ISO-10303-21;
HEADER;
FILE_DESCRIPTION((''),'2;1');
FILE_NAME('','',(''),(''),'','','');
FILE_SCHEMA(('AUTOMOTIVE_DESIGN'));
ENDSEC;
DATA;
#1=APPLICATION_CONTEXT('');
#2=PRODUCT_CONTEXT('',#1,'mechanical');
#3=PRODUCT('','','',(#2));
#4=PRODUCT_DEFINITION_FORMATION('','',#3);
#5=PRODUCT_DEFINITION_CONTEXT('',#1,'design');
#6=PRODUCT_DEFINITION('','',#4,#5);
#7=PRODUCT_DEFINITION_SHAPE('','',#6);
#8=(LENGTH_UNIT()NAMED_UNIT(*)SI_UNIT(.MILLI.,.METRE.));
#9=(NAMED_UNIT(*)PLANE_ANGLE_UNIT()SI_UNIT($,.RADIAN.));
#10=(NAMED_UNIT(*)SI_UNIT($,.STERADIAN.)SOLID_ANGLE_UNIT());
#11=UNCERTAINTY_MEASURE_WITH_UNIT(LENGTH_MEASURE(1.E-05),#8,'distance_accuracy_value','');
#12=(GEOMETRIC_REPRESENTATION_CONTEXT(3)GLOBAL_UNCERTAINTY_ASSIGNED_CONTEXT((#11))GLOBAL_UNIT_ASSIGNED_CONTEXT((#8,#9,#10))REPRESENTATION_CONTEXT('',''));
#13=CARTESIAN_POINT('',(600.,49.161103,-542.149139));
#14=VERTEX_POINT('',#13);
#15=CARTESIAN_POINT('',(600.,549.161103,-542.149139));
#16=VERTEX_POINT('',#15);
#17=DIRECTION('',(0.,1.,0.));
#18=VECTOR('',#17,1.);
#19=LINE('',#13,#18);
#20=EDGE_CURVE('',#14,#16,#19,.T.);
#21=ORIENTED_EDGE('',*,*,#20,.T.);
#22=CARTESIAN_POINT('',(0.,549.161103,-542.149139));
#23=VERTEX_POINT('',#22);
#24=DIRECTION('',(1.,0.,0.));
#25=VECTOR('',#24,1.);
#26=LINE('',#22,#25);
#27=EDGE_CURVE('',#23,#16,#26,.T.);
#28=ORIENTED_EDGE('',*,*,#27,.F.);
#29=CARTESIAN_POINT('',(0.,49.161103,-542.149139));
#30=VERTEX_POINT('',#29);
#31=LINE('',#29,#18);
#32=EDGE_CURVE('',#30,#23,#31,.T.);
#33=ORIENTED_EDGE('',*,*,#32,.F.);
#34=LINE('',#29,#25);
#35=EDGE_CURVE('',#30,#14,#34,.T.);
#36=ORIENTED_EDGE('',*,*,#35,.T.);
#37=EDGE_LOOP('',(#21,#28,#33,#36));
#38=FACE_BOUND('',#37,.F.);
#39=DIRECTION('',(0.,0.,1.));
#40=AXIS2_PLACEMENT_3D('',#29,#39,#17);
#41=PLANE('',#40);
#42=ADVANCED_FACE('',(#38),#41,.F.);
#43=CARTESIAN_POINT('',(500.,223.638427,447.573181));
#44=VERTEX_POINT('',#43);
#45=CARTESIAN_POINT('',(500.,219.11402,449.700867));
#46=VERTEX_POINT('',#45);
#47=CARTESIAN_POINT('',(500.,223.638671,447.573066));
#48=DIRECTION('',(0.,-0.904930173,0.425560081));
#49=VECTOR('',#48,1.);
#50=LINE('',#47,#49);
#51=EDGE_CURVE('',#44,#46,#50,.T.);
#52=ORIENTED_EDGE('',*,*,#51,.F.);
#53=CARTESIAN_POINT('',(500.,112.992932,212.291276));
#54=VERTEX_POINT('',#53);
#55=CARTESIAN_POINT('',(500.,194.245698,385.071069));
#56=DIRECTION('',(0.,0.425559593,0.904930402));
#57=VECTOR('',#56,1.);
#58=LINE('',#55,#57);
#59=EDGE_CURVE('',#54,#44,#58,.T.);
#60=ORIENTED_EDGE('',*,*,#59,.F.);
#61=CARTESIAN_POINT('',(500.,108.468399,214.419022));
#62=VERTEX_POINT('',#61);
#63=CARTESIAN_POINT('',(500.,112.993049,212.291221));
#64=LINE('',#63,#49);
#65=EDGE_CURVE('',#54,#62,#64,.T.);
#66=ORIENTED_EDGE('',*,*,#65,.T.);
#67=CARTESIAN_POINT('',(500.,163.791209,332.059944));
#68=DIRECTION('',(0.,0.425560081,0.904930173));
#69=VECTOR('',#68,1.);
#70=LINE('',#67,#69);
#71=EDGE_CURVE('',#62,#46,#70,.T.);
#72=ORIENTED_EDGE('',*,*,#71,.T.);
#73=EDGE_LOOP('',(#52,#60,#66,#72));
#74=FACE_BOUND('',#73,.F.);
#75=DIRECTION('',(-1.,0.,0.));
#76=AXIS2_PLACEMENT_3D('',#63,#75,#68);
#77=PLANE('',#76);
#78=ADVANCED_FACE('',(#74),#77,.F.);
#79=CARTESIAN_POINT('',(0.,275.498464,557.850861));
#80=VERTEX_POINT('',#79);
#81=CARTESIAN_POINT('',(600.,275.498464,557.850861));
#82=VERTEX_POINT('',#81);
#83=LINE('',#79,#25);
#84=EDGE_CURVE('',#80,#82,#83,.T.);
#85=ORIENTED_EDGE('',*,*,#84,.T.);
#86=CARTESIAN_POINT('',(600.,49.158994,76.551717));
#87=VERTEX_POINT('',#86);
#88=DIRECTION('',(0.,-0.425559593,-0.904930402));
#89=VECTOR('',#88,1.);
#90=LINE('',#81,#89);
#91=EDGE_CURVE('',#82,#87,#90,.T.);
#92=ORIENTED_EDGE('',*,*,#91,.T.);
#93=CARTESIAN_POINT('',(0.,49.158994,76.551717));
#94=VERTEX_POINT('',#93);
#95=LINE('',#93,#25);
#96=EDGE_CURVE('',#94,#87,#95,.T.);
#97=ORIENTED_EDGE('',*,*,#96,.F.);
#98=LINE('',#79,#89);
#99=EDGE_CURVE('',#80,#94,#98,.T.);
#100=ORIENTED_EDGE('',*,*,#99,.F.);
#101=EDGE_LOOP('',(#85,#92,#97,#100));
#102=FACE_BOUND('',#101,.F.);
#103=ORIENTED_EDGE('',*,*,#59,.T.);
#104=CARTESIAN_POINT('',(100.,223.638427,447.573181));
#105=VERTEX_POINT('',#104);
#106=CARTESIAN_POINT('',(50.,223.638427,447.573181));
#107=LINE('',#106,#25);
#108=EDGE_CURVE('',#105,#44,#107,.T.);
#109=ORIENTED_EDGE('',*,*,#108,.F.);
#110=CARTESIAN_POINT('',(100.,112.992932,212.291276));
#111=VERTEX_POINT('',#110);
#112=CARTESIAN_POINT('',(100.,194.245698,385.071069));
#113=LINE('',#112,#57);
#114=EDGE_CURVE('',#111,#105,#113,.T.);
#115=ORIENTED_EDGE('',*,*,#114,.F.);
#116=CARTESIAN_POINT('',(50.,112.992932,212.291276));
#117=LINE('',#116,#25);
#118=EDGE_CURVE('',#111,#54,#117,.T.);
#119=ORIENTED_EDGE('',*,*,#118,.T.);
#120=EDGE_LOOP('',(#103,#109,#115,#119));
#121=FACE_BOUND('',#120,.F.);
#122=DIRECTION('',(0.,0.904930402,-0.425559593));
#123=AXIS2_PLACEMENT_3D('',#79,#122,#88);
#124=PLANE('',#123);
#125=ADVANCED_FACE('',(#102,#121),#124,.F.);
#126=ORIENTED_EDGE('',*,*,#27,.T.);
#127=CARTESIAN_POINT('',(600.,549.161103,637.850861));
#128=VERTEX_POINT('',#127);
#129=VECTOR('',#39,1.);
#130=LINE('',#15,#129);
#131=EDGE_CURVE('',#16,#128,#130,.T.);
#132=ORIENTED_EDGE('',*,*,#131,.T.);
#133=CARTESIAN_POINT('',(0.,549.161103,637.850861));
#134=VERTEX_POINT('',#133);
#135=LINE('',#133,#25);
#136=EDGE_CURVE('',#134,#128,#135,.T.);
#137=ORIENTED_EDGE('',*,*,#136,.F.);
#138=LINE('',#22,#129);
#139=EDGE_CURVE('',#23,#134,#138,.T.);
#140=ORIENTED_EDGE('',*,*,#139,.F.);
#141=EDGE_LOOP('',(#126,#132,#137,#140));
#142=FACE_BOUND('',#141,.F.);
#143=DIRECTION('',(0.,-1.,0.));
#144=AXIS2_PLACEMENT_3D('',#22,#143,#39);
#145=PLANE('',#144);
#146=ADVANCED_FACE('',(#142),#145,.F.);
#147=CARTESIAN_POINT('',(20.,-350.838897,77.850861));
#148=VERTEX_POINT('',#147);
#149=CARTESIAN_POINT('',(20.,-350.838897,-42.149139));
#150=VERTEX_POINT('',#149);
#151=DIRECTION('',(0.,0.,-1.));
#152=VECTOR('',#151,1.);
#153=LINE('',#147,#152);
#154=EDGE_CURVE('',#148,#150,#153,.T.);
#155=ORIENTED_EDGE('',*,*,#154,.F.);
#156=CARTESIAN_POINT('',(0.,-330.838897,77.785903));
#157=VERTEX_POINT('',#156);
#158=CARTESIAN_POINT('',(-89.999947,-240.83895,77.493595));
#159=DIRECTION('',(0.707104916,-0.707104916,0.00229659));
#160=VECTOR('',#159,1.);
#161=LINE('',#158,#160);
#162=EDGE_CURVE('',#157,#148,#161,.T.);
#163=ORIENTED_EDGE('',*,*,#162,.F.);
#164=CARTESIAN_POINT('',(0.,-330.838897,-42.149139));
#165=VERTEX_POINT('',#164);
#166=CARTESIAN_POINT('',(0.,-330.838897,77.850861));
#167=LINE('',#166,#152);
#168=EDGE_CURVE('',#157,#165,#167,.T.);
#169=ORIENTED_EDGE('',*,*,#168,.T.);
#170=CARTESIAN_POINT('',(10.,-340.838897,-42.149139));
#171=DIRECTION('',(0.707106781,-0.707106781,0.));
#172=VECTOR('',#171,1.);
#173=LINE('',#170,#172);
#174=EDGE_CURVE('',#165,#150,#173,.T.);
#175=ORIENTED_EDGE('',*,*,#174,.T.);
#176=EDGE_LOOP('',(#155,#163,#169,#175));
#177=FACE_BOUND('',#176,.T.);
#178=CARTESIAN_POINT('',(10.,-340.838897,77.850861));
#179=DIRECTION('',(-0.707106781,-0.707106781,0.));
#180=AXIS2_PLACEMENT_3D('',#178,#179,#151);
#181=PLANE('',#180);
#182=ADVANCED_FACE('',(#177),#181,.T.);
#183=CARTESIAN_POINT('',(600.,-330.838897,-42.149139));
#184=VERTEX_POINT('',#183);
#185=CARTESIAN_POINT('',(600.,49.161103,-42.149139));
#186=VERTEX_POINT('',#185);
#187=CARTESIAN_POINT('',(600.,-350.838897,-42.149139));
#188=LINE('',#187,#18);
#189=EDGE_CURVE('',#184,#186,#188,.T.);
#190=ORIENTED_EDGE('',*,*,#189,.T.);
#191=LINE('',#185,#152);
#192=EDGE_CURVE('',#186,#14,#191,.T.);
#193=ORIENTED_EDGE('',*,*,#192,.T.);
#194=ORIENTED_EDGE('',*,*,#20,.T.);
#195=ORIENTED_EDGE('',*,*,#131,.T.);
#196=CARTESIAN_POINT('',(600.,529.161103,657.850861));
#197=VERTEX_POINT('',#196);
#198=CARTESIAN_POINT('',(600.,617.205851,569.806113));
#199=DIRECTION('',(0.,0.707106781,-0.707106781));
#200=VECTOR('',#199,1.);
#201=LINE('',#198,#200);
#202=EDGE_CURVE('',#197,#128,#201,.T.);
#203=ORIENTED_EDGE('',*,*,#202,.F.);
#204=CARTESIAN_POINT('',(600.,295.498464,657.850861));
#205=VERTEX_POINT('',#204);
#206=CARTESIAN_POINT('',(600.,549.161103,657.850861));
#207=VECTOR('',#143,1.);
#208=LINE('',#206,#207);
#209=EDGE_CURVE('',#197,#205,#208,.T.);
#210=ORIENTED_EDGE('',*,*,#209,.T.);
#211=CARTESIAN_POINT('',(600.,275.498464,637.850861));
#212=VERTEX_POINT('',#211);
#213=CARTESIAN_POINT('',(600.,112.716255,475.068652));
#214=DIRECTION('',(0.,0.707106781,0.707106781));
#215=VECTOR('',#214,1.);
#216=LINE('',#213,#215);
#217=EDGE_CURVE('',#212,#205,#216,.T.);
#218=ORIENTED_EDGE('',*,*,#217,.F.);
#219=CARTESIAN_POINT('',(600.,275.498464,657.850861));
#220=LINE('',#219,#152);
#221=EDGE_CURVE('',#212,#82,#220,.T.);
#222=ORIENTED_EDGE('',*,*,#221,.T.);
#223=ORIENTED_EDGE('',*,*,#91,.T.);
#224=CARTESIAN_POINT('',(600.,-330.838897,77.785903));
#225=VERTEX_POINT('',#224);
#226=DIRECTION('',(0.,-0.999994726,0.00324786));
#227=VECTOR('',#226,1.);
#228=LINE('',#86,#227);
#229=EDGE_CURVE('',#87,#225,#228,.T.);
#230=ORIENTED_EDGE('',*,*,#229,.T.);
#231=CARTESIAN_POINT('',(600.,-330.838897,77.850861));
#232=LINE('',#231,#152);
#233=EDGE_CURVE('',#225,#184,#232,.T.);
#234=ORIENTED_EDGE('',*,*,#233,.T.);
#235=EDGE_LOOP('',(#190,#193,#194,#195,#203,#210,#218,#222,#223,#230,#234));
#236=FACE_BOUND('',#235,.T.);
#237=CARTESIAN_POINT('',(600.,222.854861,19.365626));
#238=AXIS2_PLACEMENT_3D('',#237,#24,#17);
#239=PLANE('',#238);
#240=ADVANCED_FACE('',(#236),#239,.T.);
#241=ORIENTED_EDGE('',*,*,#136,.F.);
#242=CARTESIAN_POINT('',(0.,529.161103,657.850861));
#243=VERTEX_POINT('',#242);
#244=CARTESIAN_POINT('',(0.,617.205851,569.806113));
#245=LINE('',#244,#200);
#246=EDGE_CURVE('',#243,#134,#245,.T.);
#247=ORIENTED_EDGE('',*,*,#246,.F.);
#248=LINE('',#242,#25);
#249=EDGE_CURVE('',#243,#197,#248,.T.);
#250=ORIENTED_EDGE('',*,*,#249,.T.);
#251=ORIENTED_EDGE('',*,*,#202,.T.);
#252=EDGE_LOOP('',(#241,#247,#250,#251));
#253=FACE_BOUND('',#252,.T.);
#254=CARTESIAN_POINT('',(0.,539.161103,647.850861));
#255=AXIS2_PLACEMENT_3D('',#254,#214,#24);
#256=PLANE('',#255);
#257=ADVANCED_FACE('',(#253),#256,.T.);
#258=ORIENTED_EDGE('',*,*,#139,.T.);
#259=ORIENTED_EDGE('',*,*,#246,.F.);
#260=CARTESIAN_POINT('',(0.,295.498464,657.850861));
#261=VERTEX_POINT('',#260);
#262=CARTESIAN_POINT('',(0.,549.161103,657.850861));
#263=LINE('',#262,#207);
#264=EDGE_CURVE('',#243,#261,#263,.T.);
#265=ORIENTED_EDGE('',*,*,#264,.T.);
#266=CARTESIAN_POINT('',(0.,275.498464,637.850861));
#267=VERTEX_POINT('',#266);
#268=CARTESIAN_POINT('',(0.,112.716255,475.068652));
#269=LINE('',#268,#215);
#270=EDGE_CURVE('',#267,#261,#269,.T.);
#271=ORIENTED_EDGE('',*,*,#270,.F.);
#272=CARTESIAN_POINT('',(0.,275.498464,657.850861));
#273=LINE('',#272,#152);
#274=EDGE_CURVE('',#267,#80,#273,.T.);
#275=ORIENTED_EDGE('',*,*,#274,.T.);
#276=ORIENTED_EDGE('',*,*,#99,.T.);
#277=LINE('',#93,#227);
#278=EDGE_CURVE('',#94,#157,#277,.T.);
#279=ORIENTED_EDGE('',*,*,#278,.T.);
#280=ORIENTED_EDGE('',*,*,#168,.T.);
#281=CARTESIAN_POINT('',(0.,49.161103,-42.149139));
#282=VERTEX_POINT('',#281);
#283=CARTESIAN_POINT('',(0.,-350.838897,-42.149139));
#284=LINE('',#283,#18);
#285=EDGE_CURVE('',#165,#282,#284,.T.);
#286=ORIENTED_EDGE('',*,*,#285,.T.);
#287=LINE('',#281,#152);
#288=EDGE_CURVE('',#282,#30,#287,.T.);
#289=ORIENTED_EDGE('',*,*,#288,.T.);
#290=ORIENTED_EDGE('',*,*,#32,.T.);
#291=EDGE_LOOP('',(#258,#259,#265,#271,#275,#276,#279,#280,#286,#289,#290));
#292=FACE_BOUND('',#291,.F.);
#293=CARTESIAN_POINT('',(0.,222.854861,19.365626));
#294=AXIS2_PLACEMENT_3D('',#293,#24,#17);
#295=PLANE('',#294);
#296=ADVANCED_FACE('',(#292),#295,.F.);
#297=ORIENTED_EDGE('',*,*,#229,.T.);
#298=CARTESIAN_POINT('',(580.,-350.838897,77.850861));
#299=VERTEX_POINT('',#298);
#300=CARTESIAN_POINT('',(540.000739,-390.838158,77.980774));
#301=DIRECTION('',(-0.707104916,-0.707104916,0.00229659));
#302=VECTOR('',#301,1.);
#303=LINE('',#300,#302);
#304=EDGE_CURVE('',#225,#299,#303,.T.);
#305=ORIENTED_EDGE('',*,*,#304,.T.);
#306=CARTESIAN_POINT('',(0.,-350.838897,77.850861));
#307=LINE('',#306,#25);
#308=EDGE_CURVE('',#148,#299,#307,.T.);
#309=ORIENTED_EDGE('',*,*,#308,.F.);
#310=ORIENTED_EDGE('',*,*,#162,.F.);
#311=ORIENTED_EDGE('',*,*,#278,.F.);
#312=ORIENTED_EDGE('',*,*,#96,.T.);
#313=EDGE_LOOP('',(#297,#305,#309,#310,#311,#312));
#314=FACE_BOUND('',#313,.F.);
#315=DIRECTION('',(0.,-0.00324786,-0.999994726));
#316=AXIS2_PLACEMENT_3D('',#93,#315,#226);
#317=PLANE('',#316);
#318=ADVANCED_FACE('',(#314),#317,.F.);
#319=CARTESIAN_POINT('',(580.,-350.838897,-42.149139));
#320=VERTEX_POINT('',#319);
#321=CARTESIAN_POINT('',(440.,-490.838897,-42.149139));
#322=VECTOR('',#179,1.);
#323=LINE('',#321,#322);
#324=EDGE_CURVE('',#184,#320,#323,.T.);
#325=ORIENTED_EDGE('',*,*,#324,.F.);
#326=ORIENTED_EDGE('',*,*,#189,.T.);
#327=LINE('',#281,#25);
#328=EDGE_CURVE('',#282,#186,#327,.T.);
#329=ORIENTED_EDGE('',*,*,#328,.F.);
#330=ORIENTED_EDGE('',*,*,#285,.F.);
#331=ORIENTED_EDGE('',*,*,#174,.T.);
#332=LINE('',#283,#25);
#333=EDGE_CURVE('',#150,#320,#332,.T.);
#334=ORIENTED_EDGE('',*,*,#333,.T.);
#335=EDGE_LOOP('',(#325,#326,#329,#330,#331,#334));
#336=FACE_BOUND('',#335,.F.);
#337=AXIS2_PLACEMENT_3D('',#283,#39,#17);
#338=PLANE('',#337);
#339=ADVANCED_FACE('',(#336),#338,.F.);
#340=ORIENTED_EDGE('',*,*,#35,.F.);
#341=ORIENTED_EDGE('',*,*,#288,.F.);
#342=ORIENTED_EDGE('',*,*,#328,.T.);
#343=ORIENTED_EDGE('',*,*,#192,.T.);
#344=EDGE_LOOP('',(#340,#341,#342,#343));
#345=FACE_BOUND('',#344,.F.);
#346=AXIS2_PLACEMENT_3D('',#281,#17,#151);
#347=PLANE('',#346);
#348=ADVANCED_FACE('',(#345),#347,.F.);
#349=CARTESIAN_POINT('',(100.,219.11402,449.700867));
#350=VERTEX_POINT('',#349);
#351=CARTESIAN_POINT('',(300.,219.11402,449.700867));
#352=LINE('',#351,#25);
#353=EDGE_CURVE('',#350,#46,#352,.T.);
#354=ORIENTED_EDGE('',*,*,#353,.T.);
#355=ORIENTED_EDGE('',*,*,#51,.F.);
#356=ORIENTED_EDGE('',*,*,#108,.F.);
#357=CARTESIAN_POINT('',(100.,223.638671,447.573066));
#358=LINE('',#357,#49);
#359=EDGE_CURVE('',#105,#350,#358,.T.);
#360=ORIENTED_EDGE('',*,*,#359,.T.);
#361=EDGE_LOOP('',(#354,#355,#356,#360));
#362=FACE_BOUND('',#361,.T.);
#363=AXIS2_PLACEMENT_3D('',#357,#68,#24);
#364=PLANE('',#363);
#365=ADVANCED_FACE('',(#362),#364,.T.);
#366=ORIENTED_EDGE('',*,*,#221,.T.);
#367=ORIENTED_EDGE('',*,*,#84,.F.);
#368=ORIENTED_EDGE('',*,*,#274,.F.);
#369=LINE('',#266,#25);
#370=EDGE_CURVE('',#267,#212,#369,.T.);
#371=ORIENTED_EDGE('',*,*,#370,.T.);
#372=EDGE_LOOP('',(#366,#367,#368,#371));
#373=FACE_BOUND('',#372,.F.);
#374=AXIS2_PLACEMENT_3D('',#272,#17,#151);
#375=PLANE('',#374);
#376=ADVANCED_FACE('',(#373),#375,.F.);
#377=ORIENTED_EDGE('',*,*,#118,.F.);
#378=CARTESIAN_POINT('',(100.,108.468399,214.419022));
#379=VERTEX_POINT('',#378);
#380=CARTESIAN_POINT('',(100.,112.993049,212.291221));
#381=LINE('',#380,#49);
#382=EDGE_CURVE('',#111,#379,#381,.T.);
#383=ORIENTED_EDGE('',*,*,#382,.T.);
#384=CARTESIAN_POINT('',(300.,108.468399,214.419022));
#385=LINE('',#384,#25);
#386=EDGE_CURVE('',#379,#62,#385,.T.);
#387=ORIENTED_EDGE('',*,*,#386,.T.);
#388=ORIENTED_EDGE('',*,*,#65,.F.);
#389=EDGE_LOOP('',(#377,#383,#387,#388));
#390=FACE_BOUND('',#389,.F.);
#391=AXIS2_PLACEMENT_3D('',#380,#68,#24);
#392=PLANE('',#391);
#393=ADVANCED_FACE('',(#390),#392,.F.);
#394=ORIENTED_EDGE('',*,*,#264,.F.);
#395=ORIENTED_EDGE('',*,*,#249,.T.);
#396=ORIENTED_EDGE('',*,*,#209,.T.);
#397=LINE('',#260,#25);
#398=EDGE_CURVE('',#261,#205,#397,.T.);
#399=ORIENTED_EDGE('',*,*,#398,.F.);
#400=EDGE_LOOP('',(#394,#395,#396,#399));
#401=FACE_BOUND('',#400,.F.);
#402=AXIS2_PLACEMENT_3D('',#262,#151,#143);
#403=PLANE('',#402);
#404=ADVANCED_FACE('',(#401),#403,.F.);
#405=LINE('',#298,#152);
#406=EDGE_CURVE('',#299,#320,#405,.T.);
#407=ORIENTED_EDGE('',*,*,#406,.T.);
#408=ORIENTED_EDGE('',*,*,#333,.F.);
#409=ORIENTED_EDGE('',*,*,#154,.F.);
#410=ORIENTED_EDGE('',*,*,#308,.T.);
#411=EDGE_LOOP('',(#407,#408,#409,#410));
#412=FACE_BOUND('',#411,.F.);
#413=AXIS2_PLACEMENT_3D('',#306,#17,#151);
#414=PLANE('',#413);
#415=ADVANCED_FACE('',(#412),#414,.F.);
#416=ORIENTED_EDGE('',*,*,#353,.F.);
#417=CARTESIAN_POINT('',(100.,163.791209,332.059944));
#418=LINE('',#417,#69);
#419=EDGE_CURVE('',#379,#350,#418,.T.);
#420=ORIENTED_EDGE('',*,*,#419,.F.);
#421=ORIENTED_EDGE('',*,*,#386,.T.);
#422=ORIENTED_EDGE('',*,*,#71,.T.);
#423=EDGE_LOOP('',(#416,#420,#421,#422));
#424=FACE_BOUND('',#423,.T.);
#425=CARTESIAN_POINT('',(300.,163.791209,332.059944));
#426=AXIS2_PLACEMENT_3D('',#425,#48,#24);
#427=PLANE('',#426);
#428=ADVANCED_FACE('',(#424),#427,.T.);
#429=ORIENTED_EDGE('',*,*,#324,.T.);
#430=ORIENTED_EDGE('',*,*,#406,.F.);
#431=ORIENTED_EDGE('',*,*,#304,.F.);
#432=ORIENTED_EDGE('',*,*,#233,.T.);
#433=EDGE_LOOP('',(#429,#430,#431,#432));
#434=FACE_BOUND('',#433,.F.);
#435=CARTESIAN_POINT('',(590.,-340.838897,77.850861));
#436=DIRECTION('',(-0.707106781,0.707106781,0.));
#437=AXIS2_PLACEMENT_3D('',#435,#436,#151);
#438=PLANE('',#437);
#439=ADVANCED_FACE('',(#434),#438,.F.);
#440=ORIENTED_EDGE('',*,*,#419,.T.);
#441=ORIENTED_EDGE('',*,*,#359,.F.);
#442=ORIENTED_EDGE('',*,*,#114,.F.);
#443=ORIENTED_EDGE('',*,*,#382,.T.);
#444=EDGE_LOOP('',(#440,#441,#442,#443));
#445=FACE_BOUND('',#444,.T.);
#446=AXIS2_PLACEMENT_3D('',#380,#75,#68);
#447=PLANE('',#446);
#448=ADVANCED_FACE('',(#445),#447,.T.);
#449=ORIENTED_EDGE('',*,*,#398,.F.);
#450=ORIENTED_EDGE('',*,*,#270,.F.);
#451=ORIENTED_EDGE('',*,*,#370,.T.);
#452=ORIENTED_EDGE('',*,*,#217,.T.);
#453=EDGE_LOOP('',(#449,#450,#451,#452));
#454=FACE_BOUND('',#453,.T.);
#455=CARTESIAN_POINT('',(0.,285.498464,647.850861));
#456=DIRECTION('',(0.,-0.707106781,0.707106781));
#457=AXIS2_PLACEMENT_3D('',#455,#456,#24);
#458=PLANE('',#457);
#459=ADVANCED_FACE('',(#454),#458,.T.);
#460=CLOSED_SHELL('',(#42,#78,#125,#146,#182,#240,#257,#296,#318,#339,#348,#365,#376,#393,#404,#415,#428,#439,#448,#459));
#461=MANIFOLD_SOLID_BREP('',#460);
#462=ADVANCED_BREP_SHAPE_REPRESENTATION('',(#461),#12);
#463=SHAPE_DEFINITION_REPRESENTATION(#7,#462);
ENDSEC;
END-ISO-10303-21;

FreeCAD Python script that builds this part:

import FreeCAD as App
import Part
import Sketcher

V = App.Vector
Q = App.Units.Quantity


def edges_at(feature, points):
    """Names of the edges that pass closest to the given points."""
    edges = feature.Shape.Edges
    near = lambda p: min(range(len(edges)), key=lambda i: edges[i].distToShape(Part.Vertex(*p))[0])
    return sorted({f"Edge{near(p) + 1}" for p in points})

doc = App.newDocument("Part")
body = doc.addObject("PartDesign::Body", "Body")

sketch1 = body.newObject("Sketcher::SketchObject", "Sketch")
sketch1.AttachmentSupport = (doc.getObject("YZ_Plane"), [""])
sketch1.MapMode = "FlatFace"
sketch1.addGeometry([
    Part.LineSegment(V(549.161103, 657.850861, 0), V(275.498464, 657.850861, 0)),
    Part.LineSegment(V(275.498464, 657.850861, 0), V(275.498464, 557.850861, 0)),
    Part.LineSegment(V(275.498464, 557.850861, 0), V(49.158994, 76.551717, 0)),
    Part.LineSegment(V(49.158994, 76.551717, 0), V(-350.838897, 77.850861, 0)),
    Part.LineSegment(V(-350.838897, 77.850861, 0), V(-350.838897, -42.149139, 0)),
    Part.LineSegment(V(-350.838897, -42.149139, 0), V(49.161103, -42.149139, 0)),
    Part.LineSegment(V(49.161103, -42.149139, 0), V(49.161103, -542.149139, 0)),
    Part.LineSegment(V(49.161103, -542.149139, 0), V(549.161103, -542.149139, 0)),
    Part.LineSegment(V(549.161103, -542.149139, 0), V(549.161103, 657.850861, 0)),
], False)
sketch1.addConstraint([
    Sketcher.Constraint("Coincident", 0, 2, 1, 1),
    Sketcher.Constraint("Coincident", 1, 2, 2, 1),
    Sketcher.Constraint("Coincident", 2, 2, 3, 1),
    Sketcher.Constraint("Coincident", 3, 2, 4, 1),
    Sketcher.Constraint("Coincident", 4, 2, 5, 1),
    Sketcher.Constraint("Coincident", 5, 2, 6, 1),
    Sketcher.Constraint("Coincident", 6, 2, 7, 1),
    Sketcher.Constraint("Coincident", 7, 2, 8, 1),
    Sketcher.Constraint("Coincident", 8, 2, 0, 1),
    Sketcher.Constraint("Horizontal", 0),
    Sketcher.Constraint("Vertical", 1),
    Sketcher.Constraint("Vertical", 4),
    Sketcher.Constraint("Horizontal", 5),
    Sketcher.Constraint("Vertical", 6),
    Sketcher.Constraint("Horizontal", 7),
    Sketcher.Constraint("Vertical", 8),
    Sketcher.Constraint("Equal", 7, 6),
    Sketcher.Constraint("DistanceX", 5, 1, 5, 2, Q("400 mm")),
    Sketcher.Constraint("DistanceX", 7, 1, 7, 2, Q("500 mm")),
    Sketcher.Constraint("DistanceY", 1, 2, 1, 1, Q("100 mm")),
    Sketcher.Constraint("DistanceY", 4, 2, 4, 1, Q("120 mm")),
    Sketcher.Constraint("DistanceY", 8, 1, 8, 2, Q("1200 mm")),
    Sketcher.Constraint("Distance", 3, Q("400.000001 mm")),
    Sketcher.Constraint("DistanceX", 0, 2, 0, 1, Q("273.662639 mm")),
    Sketcher.Constraint("Distance", 2, Q("531.863161 mm")),
    Sketcher.Constraint("DistanceY", -1, 1, 0, 2, Q("657.850861 mm")),
    Sketcher.Constraint("DistanceX", -1, 1, 0, 2, Q("275.498464 mm")),
])
pad1 = body.newObject("PartDesign::Pad", "Pad")
pad1.Profile = sketch1
pad1.Length = 600

sketch2 = body.newObject("Sketcher::SketchObject", "Sketch001")
sketch2.Placement = App.Placement(V(0, 10.776047, -5.067628), App.Rotation(V(1, 0, 0), V(0, 0.425560081, 0.904930173), V(0, -0.904930173, 0.425560081), "ZXY"))
sketch2.addGeometry([
    Part.LineSegment(V(100, 500.194057, 0), V(100, 240.194057, 0)),
    Part.LineSegment(V(100, 240.194057, 0), V(500, 240.194057, 0)),
    Part.LineSegment(V(500, 240.194057, 0), V(500, 500.194057, 0)),
    Part.LineSegment(V(500, 500.194057, 0), V(100, 500.194057, 0)),
], False)
sketch2.addConstraint([
    Sketcher.Constraint("Coincident", 0, 2, 1, 1),
    Sketcher.Constraint("Coincident", 1, 2, 2, 1),
    Sketcher.Constraint("Coincident", 2, 2, 3, 1),
    Sketcher.Constraint("Coincident", 3, 2, 0, 1),
    Sketcher.Constraint("Vertical", 0),
    Sketcher.Constraint("Horizontal", 1),
    Sketcher.Constraint("Vertical", 2),
    Sketcher.Constraint("Horizontal", 3),
    Sketcher.Constraint("DistanceX", 1, 1, 1, 2, Q("400 mm")),
    Sketcher.Constraint("DistanceY", 0, 2, 0, 1, Q("260 mm")),
    Sketcher.Constraint("DistanceX", -1, 1, 0, 2, Q("100 mm")),
    Sketcher.Constraint("DistanceY", -1, 1, 0, 2, Q("240.194057 mm")),
])
pad2 = body.newObject("PartDesign::Pad", "Pad001")
pad2.Profile = sketch2
pad2.Length = 5
doc.recompute()

chamfer = body.newObject("PartDesign::Chamfer", "Chamfer")
chamfer.Base = (pad2, edges_at(pad2, [
    (300, 275.498, 657.851),
    (300, 549.161, 657.851),
    (600, -350.839, 17.851),
    (0, -350.839, 17.851),
]))
chamfer.Size = 20

doc.recompute()
